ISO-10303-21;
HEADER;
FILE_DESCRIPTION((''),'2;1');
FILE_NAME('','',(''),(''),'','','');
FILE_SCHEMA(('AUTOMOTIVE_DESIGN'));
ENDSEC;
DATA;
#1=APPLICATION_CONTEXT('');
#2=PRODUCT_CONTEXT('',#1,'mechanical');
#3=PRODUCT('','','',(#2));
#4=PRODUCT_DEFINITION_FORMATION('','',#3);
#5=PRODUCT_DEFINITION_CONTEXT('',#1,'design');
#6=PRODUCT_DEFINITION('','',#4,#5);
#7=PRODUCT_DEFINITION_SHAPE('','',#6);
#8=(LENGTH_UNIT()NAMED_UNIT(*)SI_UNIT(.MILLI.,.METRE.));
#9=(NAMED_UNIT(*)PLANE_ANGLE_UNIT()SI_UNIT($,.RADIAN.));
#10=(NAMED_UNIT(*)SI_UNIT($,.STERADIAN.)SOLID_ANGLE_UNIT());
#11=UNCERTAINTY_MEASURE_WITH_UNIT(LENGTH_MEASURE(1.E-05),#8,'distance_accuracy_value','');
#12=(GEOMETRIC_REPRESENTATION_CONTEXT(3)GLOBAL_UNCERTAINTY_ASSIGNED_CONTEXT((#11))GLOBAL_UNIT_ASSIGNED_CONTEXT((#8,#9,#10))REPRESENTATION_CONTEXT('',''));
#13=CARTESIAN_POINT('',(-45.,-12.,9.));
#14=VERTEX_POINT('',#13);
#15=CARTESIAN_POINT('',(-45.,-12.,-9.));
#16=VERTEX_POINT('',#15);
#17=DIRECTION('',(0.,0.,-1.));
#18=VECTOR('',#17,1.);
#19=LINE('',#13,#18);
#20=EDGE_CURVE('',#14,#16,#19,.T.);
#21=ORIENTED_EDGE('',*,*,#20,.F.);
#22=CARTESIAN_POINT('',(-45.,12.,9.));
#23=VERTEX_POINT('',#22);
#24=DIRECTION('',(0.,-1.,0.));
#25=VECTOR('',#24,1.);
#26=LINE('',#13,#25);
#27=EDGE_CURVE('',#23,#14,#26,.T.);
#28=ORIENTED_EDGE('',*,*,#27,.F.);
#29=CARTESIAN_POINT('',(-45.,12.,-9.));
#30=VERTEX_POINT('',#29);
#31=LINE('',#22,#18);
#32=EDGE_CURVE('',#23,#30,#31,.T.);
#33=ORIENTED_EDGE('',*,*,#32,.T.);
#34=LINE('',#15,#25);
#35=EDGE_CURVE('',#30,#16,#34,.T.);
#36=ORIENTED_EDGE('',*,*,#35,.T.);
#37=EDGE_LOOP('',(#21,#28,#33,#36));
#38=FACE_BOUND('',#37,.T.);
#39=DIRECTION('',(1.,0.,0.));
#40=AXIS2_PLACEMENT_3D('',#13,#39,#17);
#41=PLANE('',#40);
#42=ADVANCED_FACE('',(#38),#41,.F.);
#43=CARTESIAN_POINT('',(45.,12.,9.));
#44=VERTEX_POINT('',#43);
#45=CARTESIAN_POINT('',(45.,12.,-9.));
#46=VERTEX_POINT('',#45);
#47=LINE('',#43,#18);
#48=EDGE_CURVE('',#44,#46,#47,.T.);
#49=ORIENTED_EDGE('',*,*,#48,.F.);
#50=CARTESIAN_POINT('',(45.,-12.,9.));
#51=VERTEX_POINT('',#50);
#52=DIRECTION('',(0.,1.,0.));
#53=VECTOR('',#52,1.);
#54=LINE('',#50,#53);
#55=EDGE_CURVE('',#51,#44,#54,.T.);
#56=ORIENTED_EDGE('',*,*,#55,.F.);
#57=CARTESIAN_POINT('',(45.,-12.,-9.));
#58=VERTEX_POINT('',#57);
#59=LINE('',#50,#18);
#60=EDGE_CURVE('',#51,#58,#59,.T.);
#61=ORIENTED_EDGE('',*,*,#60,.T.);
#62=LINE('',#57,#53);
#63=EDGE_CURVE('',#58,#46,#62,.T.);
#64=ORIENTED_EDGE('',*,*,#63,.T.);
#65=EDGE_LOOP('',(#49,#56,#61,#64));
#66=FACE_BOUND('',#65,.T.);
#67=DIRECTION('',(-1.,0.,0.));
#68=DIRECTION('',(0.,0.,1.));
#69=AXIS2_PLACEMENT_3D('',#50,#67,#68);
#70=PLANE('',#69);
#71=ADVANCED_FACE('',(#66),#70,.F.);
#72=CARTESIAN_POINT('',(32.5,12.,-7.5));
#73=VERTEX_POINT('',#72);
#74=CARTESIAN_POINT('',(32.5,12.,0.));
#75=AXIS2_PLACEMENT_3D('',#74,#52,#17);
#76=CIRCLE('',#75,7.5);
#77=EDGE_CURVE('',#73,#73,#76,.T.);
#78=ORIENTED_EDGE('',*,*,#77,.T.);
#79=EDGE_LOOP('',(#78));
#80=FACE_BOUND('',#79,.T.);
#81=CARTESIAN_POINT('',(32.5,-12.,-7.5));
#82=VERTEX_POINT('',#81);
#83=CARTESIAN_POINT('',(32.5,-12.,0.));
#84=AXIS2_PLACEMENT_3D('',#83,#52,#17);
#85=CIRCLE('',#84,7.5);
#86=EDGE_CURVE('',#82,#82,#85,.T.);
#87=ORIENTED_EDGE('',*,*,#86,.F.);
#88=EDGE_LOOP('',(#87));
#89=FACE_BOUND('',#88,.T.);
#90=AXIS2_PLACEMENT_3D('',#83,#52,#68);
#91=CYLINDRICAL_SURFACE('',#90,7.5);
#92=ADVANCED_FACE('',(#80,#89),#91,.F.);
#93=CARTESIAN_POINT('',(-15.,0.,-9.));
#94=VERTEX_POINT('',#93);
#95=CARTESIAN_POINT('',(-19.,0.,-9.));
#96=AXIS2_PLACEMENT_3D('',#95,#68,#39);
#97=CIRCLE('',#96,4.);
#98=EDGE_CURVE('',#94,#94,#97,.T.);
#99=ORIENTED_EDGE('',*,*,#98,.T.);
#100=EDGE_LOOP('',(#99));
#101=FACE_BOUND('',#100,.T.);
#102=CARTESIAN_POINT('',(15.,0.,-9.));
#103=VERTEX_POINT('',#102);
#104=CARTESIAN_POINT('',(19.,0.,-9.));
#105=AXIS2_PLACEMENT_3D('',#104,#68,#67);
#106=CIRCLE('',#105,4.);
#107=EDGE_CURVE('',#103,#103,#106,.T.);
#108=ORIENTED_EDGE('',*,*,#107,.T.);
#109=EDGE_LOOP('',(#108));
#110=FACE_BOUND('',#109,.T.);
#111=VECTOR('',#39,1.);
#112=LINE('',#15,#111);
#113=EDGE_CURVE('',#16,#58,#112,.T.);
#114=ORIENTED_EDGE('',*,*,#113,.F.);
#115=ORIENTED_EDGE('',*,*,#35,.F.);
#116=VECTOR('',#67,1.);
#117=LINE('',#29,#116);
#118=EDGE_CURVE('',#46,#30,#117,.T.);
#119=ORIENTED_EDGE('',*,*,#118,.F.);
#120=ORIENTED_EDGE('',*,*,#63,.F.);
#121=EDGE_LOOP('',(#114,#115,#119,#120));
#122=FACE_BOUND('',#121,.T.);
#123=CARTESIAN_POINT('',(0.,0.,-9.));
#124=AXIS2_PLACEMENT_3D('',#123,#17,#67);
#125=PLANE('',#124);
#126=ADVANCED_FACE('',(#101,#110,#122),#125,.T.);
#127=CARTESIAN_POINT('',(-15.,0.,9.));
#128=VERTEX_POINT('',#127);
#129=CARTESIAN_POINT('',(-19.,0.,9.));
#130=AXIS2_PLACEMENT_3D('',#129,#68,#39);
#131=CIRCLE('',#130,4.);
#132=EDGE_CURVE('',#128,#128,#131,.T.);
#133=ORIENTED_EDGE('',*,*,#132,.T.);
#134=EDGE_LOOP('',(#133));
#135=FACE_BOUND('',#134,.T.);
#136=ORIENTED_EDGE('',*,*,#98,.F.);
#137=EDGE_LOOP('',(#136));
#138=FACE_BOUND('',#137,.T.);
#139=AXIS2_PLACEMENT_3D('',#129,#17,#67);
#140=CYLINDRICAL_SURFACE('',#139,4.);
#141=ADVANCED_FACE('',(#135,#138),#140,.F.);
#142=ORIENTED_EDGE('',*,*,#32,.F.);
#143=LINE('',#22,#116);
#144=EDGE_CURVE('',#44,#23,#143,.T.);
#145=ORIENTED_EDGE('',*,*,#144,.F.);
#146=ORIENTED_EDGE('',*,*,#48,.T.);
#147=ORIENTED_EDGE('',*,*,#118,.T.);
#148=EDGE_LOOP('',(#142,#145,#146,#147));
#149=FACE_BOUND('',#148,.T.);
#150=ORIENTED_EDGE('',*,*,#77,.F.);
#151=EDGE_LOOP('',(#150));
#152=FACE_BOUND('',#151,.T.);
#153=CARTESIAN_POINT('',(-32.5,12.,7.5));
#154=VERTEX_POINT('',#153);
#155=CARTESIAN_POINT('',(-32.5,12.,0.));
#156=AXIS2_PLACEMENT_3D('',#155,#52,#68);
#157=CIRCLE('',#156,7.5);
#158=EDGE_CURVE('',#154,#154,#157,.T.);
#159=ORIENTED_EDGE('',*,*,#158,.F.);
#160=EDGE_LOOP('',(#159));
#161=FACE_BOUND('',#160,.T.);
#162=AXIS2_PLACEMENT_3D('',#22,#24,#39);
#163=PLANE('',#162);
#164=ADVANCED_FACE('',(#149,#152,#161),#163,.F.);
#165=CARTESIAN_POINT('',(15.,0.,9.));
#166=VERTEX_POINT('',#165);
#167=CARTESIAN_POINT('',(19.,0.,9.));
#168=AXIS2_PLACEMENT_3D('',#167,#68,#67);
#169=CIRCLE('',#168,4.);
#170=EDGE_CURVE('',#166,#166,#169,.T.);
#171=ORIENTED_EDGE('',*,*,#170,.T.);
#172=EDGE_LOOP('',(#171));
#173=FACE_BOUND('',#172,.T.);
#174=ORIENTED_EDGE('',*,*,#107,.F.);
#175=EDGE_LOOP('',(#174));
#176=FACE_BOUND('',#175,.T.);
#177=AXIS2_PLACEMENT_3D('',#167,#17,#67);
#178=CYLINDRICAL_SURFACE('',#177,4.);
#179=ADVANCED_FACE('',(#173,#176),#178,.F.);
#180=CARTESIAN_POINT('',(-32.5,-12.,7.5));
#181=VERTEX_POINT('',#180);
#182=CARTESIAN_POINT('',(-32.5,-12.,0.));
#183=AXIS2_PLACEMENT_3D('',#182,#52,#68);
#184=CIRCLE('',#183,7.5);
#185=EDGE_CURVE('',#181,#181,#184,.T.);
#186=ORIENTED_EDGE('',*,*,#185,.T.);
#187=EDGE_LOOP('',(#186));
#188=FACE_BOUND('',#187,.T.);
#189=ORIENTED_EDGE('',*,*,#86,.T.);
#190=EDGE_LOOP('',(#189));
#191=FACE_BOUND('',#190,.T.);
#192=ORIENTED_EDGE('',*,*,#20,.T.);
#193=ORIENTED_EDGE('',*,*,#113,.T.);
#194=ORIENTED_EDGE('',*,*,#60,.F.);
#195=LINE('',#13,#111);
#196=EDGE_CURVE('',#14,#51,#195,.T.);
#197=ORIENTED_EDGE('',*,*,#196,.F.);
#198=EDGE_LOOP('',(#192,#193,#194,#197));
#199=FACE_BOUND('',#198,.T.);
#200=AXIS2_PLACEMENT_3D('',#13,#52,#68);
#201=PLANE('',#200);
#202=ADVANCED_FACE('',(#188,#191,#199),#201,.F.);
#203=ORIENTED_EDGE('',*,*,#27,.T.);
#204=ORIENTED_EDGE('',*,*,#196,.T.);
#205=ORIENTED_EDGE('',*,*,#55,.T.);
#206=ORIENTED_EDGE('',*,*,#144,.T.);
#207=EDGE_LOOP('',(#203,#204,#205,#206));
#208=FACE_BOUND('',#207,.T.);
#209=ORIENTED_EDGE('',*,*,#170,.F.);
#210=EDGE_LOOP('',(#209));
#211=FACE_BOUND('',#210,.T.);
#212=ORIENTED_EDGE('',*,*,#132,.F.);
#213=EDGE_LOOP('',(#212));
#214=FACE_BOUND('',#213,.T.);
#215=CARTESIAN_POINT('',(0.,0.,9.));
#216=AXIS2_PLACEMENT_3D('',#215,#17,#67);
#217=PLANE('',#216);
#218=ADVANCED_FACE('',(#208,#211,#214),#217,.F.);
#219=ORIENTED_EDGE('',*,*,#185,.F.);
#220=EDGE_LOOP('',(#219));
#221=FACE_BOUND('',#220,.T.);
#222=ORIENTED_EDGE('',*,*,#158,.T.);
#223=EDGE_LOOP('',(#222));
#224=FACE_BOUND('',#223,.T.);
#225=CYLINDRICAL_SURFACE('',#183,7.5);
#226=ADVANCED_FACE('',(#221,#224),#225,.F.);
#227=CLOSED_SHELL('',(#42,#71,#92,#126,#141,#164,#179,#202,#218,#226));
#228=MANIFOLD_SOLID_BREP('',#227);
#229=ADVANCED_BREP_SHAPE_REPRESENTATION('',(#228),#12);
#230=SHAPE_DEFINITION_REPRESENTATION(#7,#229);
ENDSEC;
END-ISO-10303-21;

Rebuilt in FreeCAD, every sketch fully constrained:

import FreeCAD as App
import Part
import Sketcher
from FreeCAD import Vector
Q = App.Units.Quantity

doc = App.newDocument("Part")
body = doc.addObject("PartDesign::Body", "Body")

# Sketch on XY plane
sketch1 = doc.addObject("Sketcher::SketchObject", "Sketch")
body.addObject(sketch1)
sketch1.AttachmentSupport = (doc.XY_Plane, [""])
sketch1.MapMode = "FlatFace"
sketch1.addGeometry([
    Part.LineSegment(Vector(-45, 12, 0), Vector(-45, -12, 0)),  # 0
    Part.LineSegment(Vector(-45, -12, 0), Vector(45, -12, 0)),  # 1
    Part.LineSegment(Vector(45, -12, 0), Vector(45, 12, 0)),  # 2
    Part.LineSegment(Vector(45, 12, 0), Vector(-45, 12, 0)),  # 3
    Part.Circle(Vector(-19, 0, 0), Vector(0, 0, 1), 4),  # 4
    Part.Circle(Vector(19, 0, 0), Vector(0, 0, 1), 4),  # 5
], False)
sketch1.addConstraint([
    Sketcher.Constraint("Coincident", 0, 2, 1, 1),
    Sketcher.Constraint("Coincident", 1, 2, 2, 1),
    Sketcher.Constraint("Coincident", 2, 2, 3, 1),
    Sketcher.Constraint("Coincident", 3, 2, 0, 1),
    Sketcher.Constraint("Vertical", 0),
    Sketcher.Constraint("Horizontal", 1),
    Sketcher.Constraint("Vertical", 2),
    Sketcher.Constraint("Horizontal", 3),
    Sketcher.Constraint("Equal", 4, 5),
    Sketcher.Constraint("Symmetric", 4, 3, 5, 3, -1, 1),
    Sketcher.Constraint("Symmetric", 0, 2, 2, 2, -1, 1),
    Sketcher.Constraint("PointOnObject", 4, 3, -1),
    Sketcher.Constraint("Diameter", 4, Q("8 mm")),
    Sketcher.Constraint("DistanceX", 1, 1, 1, 2, Q("90 mm")),
    Sketcher.Constraint("DistanceY", 0, 2, 0, 1, Q("24 mm")),
    Sketcher.Constraint("DistanceX", 4, 3, -1, 1, Q("19 mm")),
])
pad1 = doc.addObject("PartDesign::Pad", "Pad")
body.addObject(pad1)
pad1.Profile = sketch1
pad1.Length = 18
pad1.Midplane = True

# Sketch on XZ plane
sketch2 = doc.addObject("Sketcher::SketchObject", "Sketch001")
body.addObject(sketch2)
sketch2.AttachmentSupport = (doc.XZ_Plane, [""])
sketch2.MapMode = "FlatFace"
sketch2.AttachmentOffset = App.Placement(Vector(0, 0, -12), App.Rotation())
sketch2.addGeometry([
    Part.Circle(Vector(-32.5, 0, 0), Vector(0, 0, 1), 7.5),
    Part.Circle(Vector(32.5, 0, 0), Vector(0, 0, 1), 7.5),
], False)
sketch2.addConstraint([
    Sketcher.Constraint("Equal", 0, 1),
    Sketcher.Constraint("Symmetric", 0, 3, 1, 3, -1, 1),
    Sketcher.Constraint("PointOnObject", 0, 3, -1),
    Sketcher.Constraint("Diameter", 0, Q("15 mm")),
    Sketcher.Constraint("DistanceX", 0, 3, 1, 3, Q("65 mm")),
])
pocket1 = doc.addObject("PartDesign::Pocket", "Pocket")
body.addObject(pocket1)
pocket1.Profile = sketch2
pocket1.Type = "ThroughAll"
pocket1.Reversed = True

doc.recompute()
